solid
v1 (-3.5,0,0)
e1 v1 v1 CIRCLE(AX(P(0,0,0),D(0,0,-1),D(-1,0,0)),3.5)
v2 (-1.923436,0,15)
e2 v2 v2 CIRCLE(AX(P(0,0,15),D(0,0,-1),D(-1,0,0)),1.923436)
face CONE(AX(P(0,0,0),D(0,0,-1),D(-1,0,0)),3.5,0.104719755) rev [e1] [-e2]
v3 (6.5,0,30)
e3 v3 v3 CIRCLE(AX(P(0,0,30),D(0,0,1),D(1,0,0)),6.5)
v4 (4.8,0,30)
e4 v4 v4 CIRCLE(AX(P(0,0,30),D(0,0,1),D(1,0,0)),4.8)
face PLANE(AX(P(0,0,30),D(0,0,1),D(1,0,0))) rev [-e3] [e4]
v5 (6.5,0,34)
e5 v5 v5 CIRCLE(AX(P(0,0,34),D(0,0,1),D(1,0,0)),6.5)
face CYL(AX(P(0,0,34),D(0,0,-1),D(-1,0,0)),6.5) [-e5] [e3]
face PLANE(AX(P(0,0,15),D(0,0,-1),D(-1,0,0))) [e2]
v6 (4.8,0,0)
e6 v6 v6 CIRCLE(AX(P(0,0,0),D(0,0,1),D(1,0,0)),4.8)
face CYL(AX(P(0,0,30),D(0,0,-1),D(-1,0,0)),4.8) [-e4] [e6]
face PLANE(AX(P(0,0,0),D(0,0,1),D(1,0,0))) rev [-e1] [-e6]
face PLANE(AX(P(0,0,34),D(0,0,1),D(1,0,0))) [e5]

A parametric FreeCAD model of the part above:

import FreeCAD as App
import Part
import Sketcher


def faces_at(feature, points):
    """Names of the faces that lie closest to the given points."""
    faces = feature.Shape.Faces
    near = lambda p: min(range(len(faces)), key=lambda i: faces[i].distToShape(Part.Vertex(*p))[0])
    return sorted({f"Face{near(p) + 1}" for p in points})

doc = App.newDocument("Part")
body = doc.addObject("PartDesign::Body", "Body")

# Sketch on XY plane
sketch1 = body.newObject("Sketcher::SketchObject", "Sketch")
sketch1.AttachmentSupport = (doc.getObject("XY_Plane"), [""])
sketch1.MapMode = "FlatFace"
sketch1.addGeometry(Part.Circle(App.Vector(0, 0, 0), App.Vector(0, 0, 1), 4.8), False)
sketch1.addConstraint(Sketcher.Constraint("Coincident", 0, 3, -1, 1))
sketch1.addConstraint(Sketcher.Constraint("Diameter", 0, 9.6))
pad1 = body.newObject("PartDesign::Pad", "Pad")
pad1.Profile = sketch1
pad1.Length = 30

# Sketch on XY plane
sketch2 = body.newObject("Sketcher::SketchObject", "Sketch001")
sketch2.AttachmentSupport = (doc.getObject("XY_Plane"), [""])
sketch2.MapMode = "FlatFace"
sketch2.AttachmentOffset = App.Placement(App.Vector(0, 0, 30), App.Rotation())
sketch2.addGeometry(Part.Circle(App.Vector(0, 0, 0), App.Vector(0, 0, 1), 6), False)
sketch2.addConstraint(Sketcher.Constraint("Coincident", 0, 3, -1, 1))
sketch2.addConstraint(Sketcher.Constraint("Diameter", 0, 13.0))
pad2 = body.newObject("PartDesign::Pad", "Pad001")
pad2.Profile = sketch2
pad2.Length = 4
body2 = doc.addObject("PartDesign::Body", "Body001")

# Sketch on XY plane
sketch3 = body2.newObject("Sketcher::SketchObject", "Sketch002")
sketch3.AttachmentSupport = (doc.getObject("XY_Plane001"), [""])
sketch3.MapMode = "FlatFace"
sketch3.addGeometry(Part.Circle(App.Vector(0, 0, 0), App.Vector(0, 0, 1), 3.5), False)
sketch3.addConstraint(Sketcher.Constraint("Coincident", 0, 3, -1, 1))
sketch3.addConstraint(Sketcher.Constraint("Diameter", 0, 7.0))
pad3 = body2.newObject("PartDesign::Pad", "Pad002")
pad3.Profile = sketch3
pad3.Length = 15
doc.recompute()

draft = body2.newObject("PartDesign::Draft", "Draft")
draft.Base = (pad3, faces_at(pad3, [(3.5, 0, 7.5)]))
draft.NeutralPlane = (doc.getObject("XY_Plane001"), [""])
draft.Angle = 6
draft.Reversed = False
doc.recompute()

boolean = body.newObject("PartDesign::Boolean", "Boolean")
boolean.Type = "Cut"
boolean.addObjects([body2])

doc.recompute()
